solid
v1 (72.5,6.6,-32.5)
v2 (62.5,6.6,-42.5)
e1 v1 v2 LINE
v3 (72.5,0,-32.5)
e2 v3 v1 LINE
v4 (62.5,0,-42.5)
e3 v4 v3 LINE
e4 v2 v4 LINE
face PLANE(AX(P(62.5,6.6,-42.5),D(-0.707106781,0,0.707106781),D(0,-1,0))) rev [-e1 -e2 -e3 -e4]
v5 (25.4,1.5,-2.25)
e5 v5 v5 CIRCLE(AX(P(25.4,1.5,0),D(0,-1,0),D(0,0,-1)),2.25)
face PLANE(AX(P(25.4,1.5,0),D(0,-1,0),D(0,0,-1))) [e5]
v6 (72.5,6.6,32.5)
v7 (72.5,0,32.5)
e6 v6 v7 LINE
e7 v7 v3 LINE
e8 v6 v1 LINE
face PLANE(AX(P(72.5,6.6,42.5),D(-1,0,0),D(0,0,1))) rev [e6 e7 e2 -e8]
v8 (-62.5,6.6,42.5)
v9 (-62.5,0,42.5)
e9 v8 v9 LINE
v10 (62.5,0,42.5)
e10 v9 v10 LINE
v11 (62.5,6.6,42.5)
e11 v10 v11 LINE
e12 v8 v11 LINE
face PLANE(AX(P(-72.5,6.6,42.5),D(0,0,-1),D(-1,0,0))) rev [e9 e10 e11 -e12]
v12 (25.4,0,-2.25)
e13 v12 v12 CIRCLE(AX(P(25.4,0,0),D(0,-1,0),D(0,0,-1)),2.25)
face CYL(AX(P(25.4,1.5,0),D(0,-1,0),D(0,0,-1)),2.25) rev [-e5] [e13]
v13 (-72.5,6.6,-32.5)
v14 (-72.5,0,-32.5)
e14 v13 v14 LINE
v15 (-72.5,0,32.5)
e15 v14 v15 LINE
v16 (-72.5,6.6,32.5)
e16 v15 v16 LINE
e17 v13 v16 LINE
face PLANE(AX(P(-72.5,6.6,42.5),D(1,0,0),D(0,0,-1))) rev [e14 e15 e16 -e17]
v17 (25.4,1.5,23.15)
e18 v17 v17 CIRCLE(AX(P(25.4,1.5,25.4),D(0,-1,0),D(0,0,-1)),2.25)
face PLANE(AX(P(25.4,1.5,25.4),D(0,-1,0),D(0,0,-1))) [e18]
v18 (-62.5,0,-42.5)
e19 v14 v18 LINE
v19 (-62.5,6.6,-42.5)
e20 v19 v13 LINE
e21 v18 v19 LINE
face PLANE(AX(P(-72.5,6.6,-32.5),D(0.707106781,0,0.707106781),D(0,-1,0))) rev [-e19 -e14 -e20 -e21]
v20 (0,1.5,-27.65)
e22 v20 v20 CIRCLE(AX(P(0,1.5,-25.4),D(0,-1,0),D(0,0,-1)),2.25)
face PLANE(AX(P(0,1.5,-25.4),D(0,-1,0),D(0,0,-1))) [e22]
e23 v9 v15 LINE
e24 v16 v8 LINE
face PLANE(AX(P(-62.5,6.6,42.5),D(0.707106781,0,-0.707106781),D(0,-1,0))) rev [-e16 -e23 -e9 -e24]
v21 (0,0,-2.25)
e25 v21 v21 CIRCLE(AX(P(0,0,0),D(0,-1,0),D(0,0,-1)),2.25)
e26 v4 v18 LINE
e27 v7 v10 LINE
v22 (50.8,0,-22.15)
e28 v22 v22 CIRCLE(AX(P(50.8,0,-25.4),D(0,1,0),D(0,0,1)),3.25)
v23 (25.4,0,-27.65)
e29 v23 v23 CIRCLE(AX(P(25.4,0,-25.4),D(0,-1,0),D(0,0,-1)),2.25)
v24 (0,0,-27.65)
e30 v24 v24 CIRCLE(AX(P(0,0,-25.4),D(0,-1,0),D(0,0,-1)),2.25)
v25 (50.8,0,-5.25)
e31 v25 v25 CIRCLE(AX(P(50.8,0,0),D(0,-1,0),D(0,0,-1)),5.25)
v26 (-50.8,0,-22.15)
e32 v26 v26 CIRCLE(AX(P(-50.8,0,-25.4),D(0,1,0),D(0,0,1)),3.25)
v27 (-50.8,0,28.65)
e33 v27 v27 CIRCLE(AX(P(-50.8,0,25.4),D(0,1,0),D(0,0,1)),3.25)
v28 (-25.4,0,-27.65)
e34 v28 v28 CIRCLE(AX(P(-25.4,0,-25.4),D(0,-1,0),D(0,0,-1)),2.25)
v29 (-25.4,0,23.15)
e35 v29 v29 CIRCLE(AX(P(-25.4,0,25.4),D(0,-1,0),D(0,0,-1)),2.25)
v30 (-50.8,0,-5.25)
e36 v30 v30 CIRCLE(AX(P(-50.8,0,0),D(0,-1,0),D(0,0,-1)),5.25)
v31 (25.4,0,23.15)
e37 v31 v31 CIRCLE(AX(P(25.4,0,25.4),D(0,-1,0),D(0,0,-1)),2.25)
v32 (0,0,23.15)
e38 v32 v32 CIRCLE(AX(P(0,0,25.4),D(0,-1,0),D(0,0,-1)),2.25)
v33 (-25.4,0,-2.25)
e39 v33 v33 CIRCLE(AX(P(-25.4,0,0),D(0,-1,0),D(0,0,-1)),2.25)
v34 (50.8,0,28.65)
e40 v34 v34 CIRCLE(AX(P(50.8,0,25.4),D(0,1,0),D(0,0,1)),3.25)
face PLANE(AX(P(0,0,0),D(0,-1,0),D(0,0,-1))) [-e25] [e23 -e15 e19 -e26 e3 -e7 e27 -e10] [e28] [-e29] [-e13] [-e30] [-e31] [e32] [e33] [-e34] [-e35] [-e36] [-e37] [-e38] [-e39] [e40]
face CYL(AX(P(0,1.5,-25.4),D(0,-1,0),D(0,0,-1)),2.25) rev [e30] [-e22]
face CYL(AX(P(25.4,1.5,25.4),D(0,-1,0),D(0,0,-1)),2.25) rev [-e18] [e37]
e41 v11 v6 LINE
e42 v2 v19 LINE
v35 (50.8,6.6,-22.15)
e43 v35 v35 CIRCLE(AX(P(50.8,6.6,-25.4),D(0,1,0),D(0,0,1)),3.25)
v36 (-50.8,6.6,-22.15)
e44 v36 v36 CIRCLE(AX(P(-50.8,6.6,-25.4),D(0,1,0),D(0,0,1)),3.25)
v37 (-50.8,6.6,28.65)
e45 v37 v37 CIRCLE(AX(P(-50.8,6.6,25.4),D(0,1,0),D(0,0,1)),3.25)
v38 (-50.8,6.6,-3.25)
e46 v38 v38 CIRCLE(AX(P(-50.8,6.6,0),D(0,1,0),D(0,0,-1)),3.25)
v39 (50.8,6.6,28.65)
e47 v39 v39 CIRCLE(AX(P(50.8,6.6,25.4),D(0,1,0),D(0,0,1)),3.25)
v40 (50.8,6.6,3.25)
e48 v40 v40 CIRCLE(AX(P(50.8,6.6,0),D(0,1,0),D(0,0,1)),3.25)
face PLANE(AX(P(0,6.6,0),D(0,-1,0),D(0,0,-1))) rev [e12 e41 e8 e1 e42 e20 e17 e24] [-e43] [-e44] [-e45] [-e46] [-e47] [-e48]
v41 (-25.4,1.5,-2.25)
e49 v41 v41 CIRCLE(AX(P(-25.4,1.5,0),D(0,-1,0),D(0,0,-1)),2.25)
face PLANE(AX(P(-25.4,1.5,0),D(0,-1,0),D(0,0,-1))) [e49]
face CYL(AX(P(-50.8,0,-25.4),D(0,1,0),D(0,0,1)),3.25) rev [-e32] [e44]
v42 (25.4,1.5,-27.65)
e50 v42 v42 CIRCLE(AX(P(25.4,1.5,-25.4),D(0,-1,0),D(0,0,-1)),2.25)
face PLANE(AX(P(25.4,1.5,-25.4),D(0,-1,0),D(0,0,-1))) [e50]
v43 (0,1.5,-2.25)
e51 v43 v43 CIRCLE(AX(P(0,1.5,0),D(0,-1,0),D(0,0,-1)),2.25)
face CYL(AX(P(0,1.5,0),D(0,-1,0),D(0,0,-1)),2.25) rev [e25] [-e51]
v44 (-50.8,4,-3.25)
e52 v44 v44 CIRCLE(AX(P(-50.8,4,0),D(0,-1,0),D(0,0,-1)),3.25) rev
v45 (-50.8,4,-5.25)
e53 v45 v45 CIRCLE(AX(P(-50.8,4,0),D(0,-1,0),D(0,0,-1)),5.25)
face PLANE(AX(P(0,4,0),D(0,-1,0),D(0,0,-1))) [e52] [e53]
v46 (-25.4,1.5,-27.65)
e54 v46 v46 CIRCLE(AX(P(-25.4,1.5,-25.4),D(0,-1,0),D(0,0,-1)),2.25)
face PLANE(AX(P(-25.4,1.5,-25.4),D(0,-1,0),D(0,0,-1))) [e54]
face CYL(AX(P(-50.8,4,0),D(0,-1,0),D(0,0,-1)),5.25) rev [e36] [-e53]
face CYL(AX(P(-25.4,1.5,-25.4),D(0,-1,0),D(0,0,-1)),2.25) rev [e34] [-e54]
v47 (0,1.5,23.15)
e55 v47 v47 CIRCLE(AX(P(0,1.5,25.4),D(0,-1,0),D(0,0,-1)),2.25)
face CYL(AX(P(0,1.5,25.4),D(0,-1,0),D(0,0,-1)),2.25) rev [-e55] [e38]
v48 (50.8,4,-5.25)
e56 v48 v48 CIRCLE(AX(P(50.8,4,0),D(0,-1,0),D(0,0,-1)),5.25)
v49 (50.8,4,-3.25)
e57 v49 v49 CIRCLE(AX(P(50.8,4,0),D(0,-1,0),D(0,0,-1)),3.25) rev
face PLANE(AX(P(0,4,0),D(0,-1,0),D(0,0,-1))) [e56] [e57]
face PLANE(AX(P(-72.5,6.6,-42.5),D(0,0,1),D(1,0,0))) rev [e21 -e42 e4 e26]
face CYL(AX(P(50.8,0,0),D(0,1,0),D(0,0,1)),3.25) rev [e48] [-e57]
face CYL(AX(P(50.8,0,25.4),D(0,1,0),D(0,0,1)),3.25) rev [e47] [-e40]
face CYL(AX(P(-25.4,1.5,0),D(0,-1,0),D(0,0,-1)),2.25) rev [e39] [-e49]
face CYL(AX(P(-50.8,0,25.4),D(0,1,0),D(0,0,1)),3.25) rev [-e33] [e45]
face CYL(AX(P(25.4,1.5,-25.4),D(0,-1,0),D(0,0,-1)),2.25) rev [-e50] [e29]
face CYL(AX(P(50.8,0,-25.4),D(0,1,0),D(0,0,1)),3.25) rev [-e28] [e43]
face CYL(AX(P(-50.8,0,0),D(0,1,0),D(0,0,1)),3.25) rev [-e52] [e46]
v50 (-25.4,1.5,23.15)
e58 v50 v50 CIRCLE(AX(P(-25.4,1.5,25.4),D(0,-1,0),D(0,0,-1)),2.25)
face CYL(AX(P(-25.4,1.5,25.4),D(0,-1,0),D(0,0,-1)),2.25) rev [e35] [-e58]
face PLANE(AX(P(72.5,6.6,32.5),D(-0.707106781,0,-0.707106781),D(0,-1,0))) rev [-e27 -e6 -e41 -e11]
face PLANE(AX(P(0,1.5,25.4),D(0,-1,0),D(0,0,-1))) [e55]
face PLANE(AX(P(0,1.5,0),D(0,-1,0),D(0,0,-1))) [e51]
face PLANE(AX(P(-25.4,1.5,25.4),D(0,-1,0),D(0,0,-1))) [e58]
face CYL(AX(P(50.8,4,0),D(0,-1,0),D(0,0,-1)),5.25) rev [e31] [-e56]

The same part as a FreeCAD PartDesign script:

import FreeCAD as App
import Part
import Sketcher
from FreeCAD import Vector


def edges_at(feature, points):
    """Names of the edges that pass closest to the given points."""
    edges = feature.Shape.Edges
    near = lambda p: min(range(len(edges)), key=lambda i: edges[i].distToShape(Part.Vertex(*p))[0])
    return sorted({f"Edge{near(p) + 1}" for p in points})


def add_polygon(sketch, points):
    """Adds a closed chain of lines whose ends are joined by coincident constraints."""
    first, n = sketch.GeometryCount, len(points)
    for a, b in zip(points, points[1:] + points[:1]):
        sketch.addGeometry(Part.LineSegment(App.Vector(*a, 0), App.Vector(*b, 0)), False)
    for i in range(n):
        sketch.addConstraint(Sketcher.Constraint("Coincident", first + i, 2, first + (i + 1) % n, 1))

doc = App.newDocument("Part")
params = doc.addObject("Spreadsheet::Sheet", "Params")
for row, (alias, value) in enumerate([
    ("sketch1_width", "145 mm"),
    ("sketch1_height", "85 mm"),
    ("pad1_length", "6.6 mm"),
    ("sketch2_diameter", "6.5 mm"),
    ("chamfer_size", "10 mm"),
    ("sketch3_diameter", "10.5 mm"),
    ("sketch3_diameter2", "6.5 mm"),
    ("pocket2_length", "4 mm"),
    ("sketch4_diameter", "4.5 mm"),
    ("pocket3_length", "1.5 mm"),
], start=1):
    params.set(f"A{row}", alias)
    params.set(f"B{row}", "=" + value)
    params.setAlias(f"B{row}", alias)

body = doc.addObject("PartDesign::Body", "Body")

# Sketch on XZ plane
sketch1 = doc.addObject("Sketcher::SketchObject", "Sketch")
body.addObject(sketch1)
sketch1.AttachmentSupport = (doc.XZ_Plane, [""])
sketch1.MapMode = "FlatFace"
add_polygon(sketch1, [(-72, -42), (-72, 42), (72, 42), (72, -42)])  # lines 0-3
sketch1.addConstraint([
    Sketcher.Constraint("Vertical", 0),
    Sketcher.Constraint("Horizontal", 1),
    Sketcher.Constraint("Vertical", 2),
    Sketcher.Constraint("Horizontal", 3),
    Sketcher.Constraint("Symmetric", 0, 2, 2, 2, -1, 1),
    Sketcher.Constraint("DistanceX", 1, 1, 1, 2, 145.0),
    Sketcher.Constraint("DistanceY", 0, 1, 0, 2, 85.0),
])
sketch1.setExpression("Constraints[9]", "Params.sketch1_width")
sketch1.setExpression("Constraints[10]", "Params.sketch1_height")
pad1 = doc.addObject("PartDesign::Pad", "Pad")
body.addObject(pad1)
pad1.Profile = sketch1
pad1.setExpression("Length", "Params.pad1_length")
pad1.Reversed = True

# Sketch on XZ plane
sketch2 = doc.addObject("Sketcher::SketchObject", "Sketch001")
body.addObject(sketch2)
sketch2.AttachmentSupport = (doc.XZ_Plane, [""])
sketch2.MapMode = "FlatFace"
sketch2.AttachmentOffset = App.Placement(Vector(0, 0, -6.6), App.Rotation())
sketch2.addGeometry([
    Part.Circle(Vector(-50.8, -25.4, 0), Vector(0, 0, 1), 3.2),  # 0
    Part.Circle(Vector(50.8, -25.4, 0), Vector(0, 0, 1), 3.2),  # 1
    Part.Circle(Vector(50.8, 25.4, 0), Vector(0, 0, 1), 3.2),  # 2
    Part.Circle(Vector(-50.8, 25.4, 0), Vector(0, 0, 1), 3.2),  # 3
    Part.Circle(Vector(50.8, 0, 0), Vector(0, 0, 1), 3.2),  # 4
    Part.Circle(Vector(-50.8, 0, 0), Vector(0, 0, 1), 3.2),  # 5
], False)
sketch2.addConstraint([
    Sketcher.Constraint("Equal", 0, 1),
    Sketcher.Constraint("Equal", 1, 2),
    Sketcher.Constraint("Equal", 2, 3),
    Sketcher.Constraint("Equal", 3, 4),
    Sketcher.Constraint("Equal", 4, 5),
    Sketcher.Constraint("Symmetric", 0, 3, 2, 3, -1, 1),
    Sketcher.Constraint("Symmetric", 1, 3, 3, 3, -1, 1),
    Sketcher.Constraint("Symmetric", 4, 3, 5, 3, -1, 1),
    Sketcher.Constraint("Symmetric", 0, 3, 1, 3, -2),
    Sketcher.Constraint("PointOnObject", 4, 3, -1),
    Sketcher.Constraint("Vertical", 2, 3, 4, 3),
    Sketcher.Constraint("Diameter", 0, 6.5),
    Sketcher.Constraint("DistanceX", 0, 3, -1, 1, 50.8),
    Sketcher.Constraint("DistanceY", 0, 3, -1, 1, 25.4),
])
sketch2.setExpression("Constraints[11]", "Params.sketch2_diameter")
pocket1 = doc.addObject("PartDesign::Pocket", "Pocket")
body.addObject(pocket1)
pocket1.Profile = sketch2
pocket1.Type = "ThroughAll"
pocket1.Reversed = True
doc.recompute()

chamfer = doc.addObject("PartDesign::Chamfer", "Chamfer")
body.addObject(chamfer)
chamfer.Base = (pocket1, edges_at(pocket1, [
    (72.5, 3.3, 42.5),
    (-72.5, 3.3, 42.5),
    (-72.5, 3.3, -42.5),
    (72.5, 3.3, -42.5),
]))
chamfer.setExpression("Size", "Params.chamfer_size")

# Sketch on XZ plane
sketch3 = doc.addObject("Sketcher::SketchObject", "Sketch002")
body.addObject(sketch3)
sketch3.AttachmentSupport = (doc.XZ_Plane, [""])
sketch3.MapMode = "FlatFace"
sketch3.AttachmentOffset = App.Placement(Vector(0, 0, -4), App.Rotation())
sketch3.addGeometry([
    Part.Circle(Vector(50.8, 0, 0), Vector(0, 0, 1), 5.2),
    Part.Circle(Vector(50.8, 0, 0), Vector(0, 0, 1), 3.2),
    Part.Circle(Vector(-50.8, 0, 0), Vector(0, 0, 1), 5.2),
    Part.Circle(Vector(-50.8, 0, 0), Vector(0, 0, 1), 3.2),
], False)
sketch3.addConstraint([
    Sketcher.Constraint("Coincident", 1, 3, 0, 3),
    Sketcher.Constraint("Coincident", 3, 3, 2, 3),
    Sketcher.Constraint("Equal", 0, 2),
    Sketcher.Constraint("Equal", 1, 3),
    Sketcher.Constraint("Symmetric", 0, 3, 2, 3, -1, 1),
    Sketcher.Constraint("PointOnObject", 0, 3, -1),
    Sketcher.Constraint("Diameter", 0, 10.5),
    Sketcher.Constraint("Diameter", 1, 6.5),
    Sketcher.Constraint("DistanceX", -1, 1, 0, 3, 50.8),
])
sketch3.setExpression("Constraints[6]", "Params.sketch3_diameter")
sketch3.setExpression("Constraints[7]", "Params.sketch3_diameter2")
pocket2 = doc.addObject("PartDesign::Pocket", "Pocket001")
body.addObject(pocket2)
pocket2.Profile = sketch3
pocket2.setExpression("Length", "Params.pocket2_length")
pocket2.Reversed = True

# Sketch on XZ plane
sketch4 = doc.addObject("Sketcher::SketchObject", "Sketch003")
body.addObject(sketch4)
sketch4.AttachmentSupport = (doc.XZ_Plane, [""])
sketch4.MapMode = "FlatFace"
sketch4.addGeometry([
    Part.Circle(Vector(-25.4, 25.4, 0), Vector(0, 0, 1), 2.2),  # 0
    Part.Circle(Vector(0, 25.4, 0), Vector(0, 0, 1), 2.2),  # 1
    Part.Circle(Vector(25.4, 25.4, 0), Vector(0, 0, 1), 2.2),  # 2
    Part.Circle(Vector(-25.4, 0, 0), Vector(0, 0, 1), 2.2),  # 3
    Part.Circle(Vector(0, 0, 0), Vector(0, 0, 1), 2.2),  # 4
    Part.Circle(Vector(25.4, 0, 0), Vector(0, 0, 1), 2.2),  # 5
    Part.Circle(Vector(-25.4, -25.4, 0), Vector(0, 0, 1), 2.2),  # 6
    Part.Circle(Vector(0, -25.4, 0), Vector(0, 0, 1), 2.2),  # 7
    Part.Circle(Vector(25.4, -25.4, 0), Vector(0, 0, 1), 2.2),  # 8
], False)
sketch4.addConstraint([
    Sketcher.Constraint("Coincident", 4, 3, -1, 1),
    Sketcher.Constraint("Equal", 0, 1),
    Sketcher.Constraint("Equal", 1, 2),
    Sketcher.Constraint("Equal", 2, 3),
    Sketcher.Constraint("Equal", 3, 4),
    Sketcher.Constraint("Equal", 4, 5),
    Sketcher.Constraint("Equal", 5, 6),
    Sketcher.Constraint("Equal", 6, 7),
    Sketcher.Constraint("Equal", 7, 8),
    Sketcher.Constraint("Symmetric", 3, 3, 5, 3, -1, 1),
    Sketcher.Constraint("Symmetric", 2, 3, 6, 3, -1, 1),
    Sketcher.Constraint("Symmetric", 1, 3, 7, 3, -1, 1),
    Sketcher.Constraint("Symmetric", 0, 3, 8, 3, -1, 1),
    Sketcher.Constraint("Symmetric", 0, 3, 2, 3, -2),
    Sketcher.Constraint("PointOnObject", 1, 3, -2),
    Sketcher.Constraint("PointOnObject", 3, 3, -1),
    Sketcher.Constraint("Horizontal", 0, 3, 1, 3),
    Sketcher.Constraint("Vertical", 0, 3, 3, 3),
    Sketcher.Constraint("Diameter", 0, 4.5),
    Sketcher.Constraint("DistanceX", 0, 3, -1, 1, 25.4),
    Sketcher.Constraint("DistanceY", -1, 1, 0, 3, 25.4),
])
sketch4.setExpression("Constraints[18]", "Params.sketch4_diameter")
pocket3 = doc.addObject("PartDesign::Pocket", "Pocket002")
body.addObject(pocket3)
pocket3.Profile = sketch4
pocket3.setExpression("Length", "Params.pocket3_length")

doc.recompute()
